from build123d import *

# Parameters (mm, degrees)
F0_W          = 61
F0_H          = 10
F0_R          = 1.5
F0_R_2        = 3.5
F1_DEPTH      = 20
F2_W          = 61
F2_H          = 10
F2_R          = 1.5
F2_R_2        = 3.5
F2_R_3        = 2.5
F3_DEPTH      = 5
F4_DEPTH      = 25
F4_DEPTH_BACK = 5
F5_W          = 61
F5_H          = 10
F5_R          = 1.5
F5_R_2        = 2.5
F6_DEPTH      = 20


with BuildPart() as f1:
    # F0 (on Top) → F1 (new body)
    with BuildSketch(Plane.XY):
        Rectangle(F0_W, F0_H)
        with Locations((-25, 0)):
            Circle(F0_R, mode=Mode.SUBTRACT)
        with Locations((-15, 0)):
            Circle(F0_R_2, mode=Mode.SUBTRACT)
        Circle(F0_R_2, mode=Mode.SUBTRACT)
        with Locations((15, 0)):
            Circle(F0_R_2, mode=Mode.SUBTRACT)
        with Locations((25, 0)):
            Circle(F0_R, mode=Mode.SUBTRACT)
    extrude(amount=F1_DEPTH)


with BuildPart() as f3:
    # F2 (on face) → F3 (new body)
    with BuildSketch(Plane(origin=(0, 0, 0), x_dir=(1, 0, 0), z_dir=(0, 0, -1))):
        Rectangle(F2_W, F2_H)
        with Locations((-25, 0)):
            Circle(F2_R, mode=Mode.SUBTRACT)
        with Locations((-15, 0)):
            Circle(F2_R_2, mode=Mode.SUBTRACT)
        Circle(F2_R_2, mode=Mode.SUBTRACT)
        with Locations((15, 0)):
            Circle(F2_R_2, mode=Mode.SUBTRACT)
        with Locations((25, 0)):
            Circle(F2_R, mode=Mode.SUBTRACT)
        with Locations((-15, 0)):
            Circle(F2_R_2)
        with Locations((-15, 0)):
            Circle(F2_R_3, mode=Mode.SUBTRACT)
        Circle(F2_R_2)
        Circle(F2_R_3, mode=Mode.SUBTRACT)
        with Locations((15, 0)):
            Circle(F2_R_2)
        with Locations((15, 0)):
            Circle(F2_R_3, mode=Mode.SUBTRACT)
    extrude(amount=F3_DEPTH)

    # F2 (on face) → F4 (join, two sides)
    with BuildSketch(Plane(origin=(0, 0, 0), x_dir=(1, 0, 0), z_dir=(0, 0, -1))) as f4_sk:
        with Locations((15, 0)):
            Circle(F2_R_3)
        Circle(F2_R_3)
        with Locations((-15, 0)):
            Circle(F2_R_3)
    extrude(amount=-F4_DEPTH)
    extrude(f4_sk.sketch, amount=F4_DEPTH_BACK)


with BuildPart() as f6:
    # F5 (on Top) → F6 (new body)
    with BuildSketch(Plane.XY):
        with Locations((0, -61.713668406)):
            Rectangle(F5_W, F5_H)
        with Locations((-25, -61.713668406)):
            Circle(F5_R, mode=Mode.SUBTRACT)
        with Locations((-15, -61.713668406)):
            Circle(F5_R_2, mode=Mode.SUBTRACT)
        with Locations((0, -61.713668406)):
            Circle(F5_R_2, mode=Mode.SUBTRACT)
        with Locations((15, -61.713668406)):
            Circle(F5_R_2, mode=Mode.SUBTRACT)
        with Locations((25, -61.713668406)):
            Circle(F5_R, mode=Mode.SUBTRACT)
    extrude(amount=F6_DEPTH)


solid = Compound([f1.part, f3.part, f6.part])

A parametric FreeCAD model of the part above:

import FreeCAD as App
import Part
import Sketcher

V = App.Vector


def add_polygon(sketch, points):
    """Adds a closed chain of lines whose ends are joined by coincident constraints."""
    first, n = sketch.GeometryCount, len(points)
    for a, b in zip(points, points[1:] + points[:1]):
        sketch.addGeometry(Part.LineSegment(App.Vector(*a, 0), App.Vector(*b, 0)), False)
    for i in range(n):
        sketch.addConstraint(Sketcher.Constraint("Coincident", first + i, 2, first + (i + 1) % n, 1))

doc = App.newDocument("Part")
body = doc.addObject("PartDesign::Body", "Body")

sketch1 = doc.addObject("Sketcher::SketchObject", "Sketch")
body.addObject(sketch1)
sketch1.AttachmentSupport = (doc.XY_Plane, [""])
sketch1.MapMode = "FlatFace"
add_polygon(sketch1, [(-30.5, 5), (-30.5, -5), (30.5, -5), (30.5, 5)])
sketch1.addGeometry(Part.Circle(V(-25, 0, 0), V(0, 0, 1), 1.5), False)
sketch1.addGeometry(Part.Circle(V(-15, 0, 0), V(0, 0, 1), 3.5), False)
sketch1.addGeometry(Part.Circle(V(0, 0, 0), V(0, 0, 1), 3.5), False)
sketch1.addGeometry(Part.Circle(V(15, 0, 0), V(0, 0, 1), 3.5), False)
sketch1.addGeometry(Part.Circle(V(25, 0, 0), V(0, 0, 1), 1.5), False)
sketch1.addConstraint([
    Sketcher.Constraint("Vertical", 0),
    Sketcher.Constraint("Horizontal", 1),
    Sketcher.Constraint("Vertical", 2),
    Sketcher.Constraint("Horizontal", 3),
    Sketcher.Constraint("Coincident", 6, 3, -1, 1),
    Sketcher.Constraint("Equal", 5, 6),
    Sketcher.Constraint("Equal", 6, 7),
    Sketcher.Constraint("Equal", 4, 8),
    Sketcher.Constraint("Symmetric", 5, 3, 7, 3, -1, 1),
    Sketcher.Constraint("Symmetric", 4, 3, 8, 3, -1, 1),
    Sketcher.Constraint("Symmetric", 0, 2, 2, 2, -1, 1),
    Sketcher.Constraint("PointOnObject", 4, 3, -1),
    Sketcher.Constraint("PointOnObject", 5, 3, -1),
    Sketcher.Constraint("Diameter", 4, 3.0),
    Sketcher.Constraint("Diameter", 5, 7.0),
    Sketcher.Constraint("DistanceX", 1, 1, 1, 2, 61.0),
    Sketcher.Constraint("DistanceY", 0, 2, 0, 1, 10.0),
    Sketcher.Constraint("DistanceX", 4, 3, -1, 1, 25.0),
    Sketcher.Constraint("DistanceX", 5, 3, -1, 1, 15.0),
])
pad1 = doc.addObject("PartDesign::Pad", "Pad")
body.addObject(pad1)
pad1.Profile = sketch1
pad1.Length = 20
body2 = doc.addObject("PartDesign::Body", "Body001")

sketch2 = doc.addObject("Sketcher::SketchObject", "Sketch001")
body2.addObject(sketch2)
sketch2.AttachmentSupport = (doc.getObject("XY_Plane001"), [""])
sketch2.MapMode = "FlatFace"
add_polygon(sketch2, [(-30.5, -5), (-30.5, 5), (30.5, 5), (30.5, -5)])
sketch2.addGeometry(Part.Circle(V(-25, 0, 0), V(0, 0, 1), 1.5), False)
sketch2.addGeometry(Part.Circle(V(-15, 0, 0), V(0, 0, 1), 2.5), False)
sketch2.addGeometry(Part.Circle(V(0, 0, 0), V(0, 0, 1), 2.5), False)
sketch2.addGeometry(Part.Circle(V(15, 0, 0), V(0, 0, 1), 2.5), False)
sketch2.addGeometry(Part.Circle(V(25, 0, 0), V(0, 0, 1), 1.5), False)
sketch2.addConstraint([
    Sketcher.Constraint("Vertical", 0),
    Sketcher.Constraint("Horizontal", 1),
    Sketcher.Constraint("Vertical", 2),
    Sketcher.Constraint("Horizontal", 3),
    Sketcher.Constraint("Coincident", 6, 3, -1, 1),
    Sketcher.Constraint("Equal", 5, 6),
    Sketcher.Constraint("Equal", 6, 7),
    Sketcher.Constraint("Equal", 4, 8),
    Sketcher.Constraint("Symmetric", 5, 3, 7, 3, -1, 1),
    Sketcher.Constraint("Symmetric", 4, 3, 8, 3, -1, 1),
    Sketcher.Constraint("Symmetric", 0, 2, 2, 2, -1, 1),
    Sketcher.Constraint("PointOnObject", 4, 3, -1),
    Sketcher.Constraint("PointOnObject", 5, 3, -1),
    Sketcher.Constraint("Diameter", 4, 3.0),
    Sketcher.Constraint("Diameter", 5, 5.0),
    Sketcher.Constraint("DistanceX", 1, 1, 1, 2, 61.0),
    Sketcher.Constraint("DistanceY", 0, 1, 0, 2, 10.0),
    Sketcher.Constraint("DistanceX", 4, 3, -1, 1, 25.0),
    Sketcher.Constraint("DistanceX", 5, 3, -1, 1, 15.0),
])
pad2 = doc.addObject("PartDesign::Pad", "Pad001")
body2.addObject(pad2)
pad2.Profile = sketch2
pad2.Length = 5
pad2.Reversed = True

sketch3 = doc.addObject("Sketcher::SketchObject", "Sketch002")
body2.addObject(sketch3)
sketch3.AttachmentSupport = (doc.getObject("XY_Plane001"), [""])
sketch3.MapMode = "FlatFace"
sketch3.addGeometry([
    Part.Circle(V(15, 0, 0), V(0, 0, 1), 2.5),
    Part.Circle(V(0, 0, 0), V(0, 0, 1), 2.5),
    Part.Circle(V(-15, 0, 0), V(0, 0, 1), 2.5),
], False)
sketch3.addConstraint([
    Sketcher.Constraint("Coincident", 1, 3, -1, 1),
    Sketcher.Constraint("Equal", 0, 1),
    Sketcher.Constraint("Equal", 1, 2),
    Sketcher.Constraint("Symmetric", 0, 3, 2, 3, -1, 1),
    Sketcher.Constraint("PointOnObject", 0, 3, -1),
    Sketcher.Constraint("Diameter", 0, 5.0),
    Sketcher.Constraint("DistanceX", -1, 1, 0, 3, 15.0),
])
pad3 = doc.addObject("PartDesign::Pad", "Pad002")
body2.addObject(pad3)
pad3.Profile = sketch3
pad3.Type = "TwoLengths"
pad3.Length = 25
pad3.Length2 = 5
body3 = doc.addObject("PartDesign::Body", "Body002")

sketch4 = doc.addObject("Sketcher::SketchObject", "Sketch003")
body3.addObject(sketch4)
sketch4.AttachmentSupport = (doc.getObject("XY_Plane002"), [""])
sketch4.MapMode = "FlatFace"
add_polygon(sketch4, [(-30.5, -56.7), (-30.5, -66.7), (30.5, -66.7), (30.5, -56.7)])
sketch4.addGeometry(Part.Circle(V(-25, -61.7, 0), V(0, 0, 1), 1.5), False)
sketch4.addGeometry(Part.Circle(V(-15, -61.7, 0), V(0, 0, 1), 2.5), False)
sketch4.addGeometry(Part.Circle(V(0, -61.7, 0), V(0, 0, 1), 2.5), False)
sketch4.addGeometry(Part.Circle(V(15, -61.7, 0), V(0, 0, 1), 2.5), False)
sketch4.addGeometry(Part.Circle(V(25, -61.7, 0), V(0, 0, 1), 1.5), False)
sketch4.addConstraint([
    Sketcher.Constraint("Vertical", 0),
    Sketcher.Constraint("Horizontal", 1),
    Sketcher.Constraint("Vertical", 2),
    Sketcher.Constraint("Horizontal", 3),
    Sketcher.Constraint("Equal", 5, 6),
    Sketcher.Constraint("Equal", 6, 7),
    Sketcher.Constraint("Equal", 4, 8),
    Sketcher.Constraint("Symmetric", 5, 3, 7, 3, -2),
    Sketcher.Constraint("Symmetric", 4, 3, 8, 3, -2),
    Sketcher.Constraint("PointOnObject", 6, 3, -2),
    Sketcher.Constraint("Horizontal", 4, 3, 5, 3),
    Sketcher.Constraint("Horizontal", 5, 3, 6, 3),
    Sketcher.Constraint("Diameter", 4, 3.0),
    Sketcher.Constraint("Diameter", 5, 5.0),
    Sketcher.Constraint("DistanceX", 1, 1, 1, 2, 61.0),
    Sketcher.Constraint("DistanceY", 0, 2, 0, 1, 10.0),
    Sketcher.Constraint("DistanceX", 4, 3, -1, 1, 25.0),
    Sketcher.Constraint("DistanceX", 5, 3, -1, 1, 15.0),
    Sketcher.Constraint("DistanceY", 0, 2, 4, 3, 5.0),
    Sketcher.Constraint("DistanceX", 0, 2, -1, 1, 30.5),
    Sketcher.Constraint("DistanceY", 4, 3, -1, 1, 61.713668),
])
pad4 = doc.addObject("PartDesign::Pad", "Pad003")
body3.addObject(pad4)
pad4.Profile = sketch4
pad4.Length = 20

doc.recompute()
